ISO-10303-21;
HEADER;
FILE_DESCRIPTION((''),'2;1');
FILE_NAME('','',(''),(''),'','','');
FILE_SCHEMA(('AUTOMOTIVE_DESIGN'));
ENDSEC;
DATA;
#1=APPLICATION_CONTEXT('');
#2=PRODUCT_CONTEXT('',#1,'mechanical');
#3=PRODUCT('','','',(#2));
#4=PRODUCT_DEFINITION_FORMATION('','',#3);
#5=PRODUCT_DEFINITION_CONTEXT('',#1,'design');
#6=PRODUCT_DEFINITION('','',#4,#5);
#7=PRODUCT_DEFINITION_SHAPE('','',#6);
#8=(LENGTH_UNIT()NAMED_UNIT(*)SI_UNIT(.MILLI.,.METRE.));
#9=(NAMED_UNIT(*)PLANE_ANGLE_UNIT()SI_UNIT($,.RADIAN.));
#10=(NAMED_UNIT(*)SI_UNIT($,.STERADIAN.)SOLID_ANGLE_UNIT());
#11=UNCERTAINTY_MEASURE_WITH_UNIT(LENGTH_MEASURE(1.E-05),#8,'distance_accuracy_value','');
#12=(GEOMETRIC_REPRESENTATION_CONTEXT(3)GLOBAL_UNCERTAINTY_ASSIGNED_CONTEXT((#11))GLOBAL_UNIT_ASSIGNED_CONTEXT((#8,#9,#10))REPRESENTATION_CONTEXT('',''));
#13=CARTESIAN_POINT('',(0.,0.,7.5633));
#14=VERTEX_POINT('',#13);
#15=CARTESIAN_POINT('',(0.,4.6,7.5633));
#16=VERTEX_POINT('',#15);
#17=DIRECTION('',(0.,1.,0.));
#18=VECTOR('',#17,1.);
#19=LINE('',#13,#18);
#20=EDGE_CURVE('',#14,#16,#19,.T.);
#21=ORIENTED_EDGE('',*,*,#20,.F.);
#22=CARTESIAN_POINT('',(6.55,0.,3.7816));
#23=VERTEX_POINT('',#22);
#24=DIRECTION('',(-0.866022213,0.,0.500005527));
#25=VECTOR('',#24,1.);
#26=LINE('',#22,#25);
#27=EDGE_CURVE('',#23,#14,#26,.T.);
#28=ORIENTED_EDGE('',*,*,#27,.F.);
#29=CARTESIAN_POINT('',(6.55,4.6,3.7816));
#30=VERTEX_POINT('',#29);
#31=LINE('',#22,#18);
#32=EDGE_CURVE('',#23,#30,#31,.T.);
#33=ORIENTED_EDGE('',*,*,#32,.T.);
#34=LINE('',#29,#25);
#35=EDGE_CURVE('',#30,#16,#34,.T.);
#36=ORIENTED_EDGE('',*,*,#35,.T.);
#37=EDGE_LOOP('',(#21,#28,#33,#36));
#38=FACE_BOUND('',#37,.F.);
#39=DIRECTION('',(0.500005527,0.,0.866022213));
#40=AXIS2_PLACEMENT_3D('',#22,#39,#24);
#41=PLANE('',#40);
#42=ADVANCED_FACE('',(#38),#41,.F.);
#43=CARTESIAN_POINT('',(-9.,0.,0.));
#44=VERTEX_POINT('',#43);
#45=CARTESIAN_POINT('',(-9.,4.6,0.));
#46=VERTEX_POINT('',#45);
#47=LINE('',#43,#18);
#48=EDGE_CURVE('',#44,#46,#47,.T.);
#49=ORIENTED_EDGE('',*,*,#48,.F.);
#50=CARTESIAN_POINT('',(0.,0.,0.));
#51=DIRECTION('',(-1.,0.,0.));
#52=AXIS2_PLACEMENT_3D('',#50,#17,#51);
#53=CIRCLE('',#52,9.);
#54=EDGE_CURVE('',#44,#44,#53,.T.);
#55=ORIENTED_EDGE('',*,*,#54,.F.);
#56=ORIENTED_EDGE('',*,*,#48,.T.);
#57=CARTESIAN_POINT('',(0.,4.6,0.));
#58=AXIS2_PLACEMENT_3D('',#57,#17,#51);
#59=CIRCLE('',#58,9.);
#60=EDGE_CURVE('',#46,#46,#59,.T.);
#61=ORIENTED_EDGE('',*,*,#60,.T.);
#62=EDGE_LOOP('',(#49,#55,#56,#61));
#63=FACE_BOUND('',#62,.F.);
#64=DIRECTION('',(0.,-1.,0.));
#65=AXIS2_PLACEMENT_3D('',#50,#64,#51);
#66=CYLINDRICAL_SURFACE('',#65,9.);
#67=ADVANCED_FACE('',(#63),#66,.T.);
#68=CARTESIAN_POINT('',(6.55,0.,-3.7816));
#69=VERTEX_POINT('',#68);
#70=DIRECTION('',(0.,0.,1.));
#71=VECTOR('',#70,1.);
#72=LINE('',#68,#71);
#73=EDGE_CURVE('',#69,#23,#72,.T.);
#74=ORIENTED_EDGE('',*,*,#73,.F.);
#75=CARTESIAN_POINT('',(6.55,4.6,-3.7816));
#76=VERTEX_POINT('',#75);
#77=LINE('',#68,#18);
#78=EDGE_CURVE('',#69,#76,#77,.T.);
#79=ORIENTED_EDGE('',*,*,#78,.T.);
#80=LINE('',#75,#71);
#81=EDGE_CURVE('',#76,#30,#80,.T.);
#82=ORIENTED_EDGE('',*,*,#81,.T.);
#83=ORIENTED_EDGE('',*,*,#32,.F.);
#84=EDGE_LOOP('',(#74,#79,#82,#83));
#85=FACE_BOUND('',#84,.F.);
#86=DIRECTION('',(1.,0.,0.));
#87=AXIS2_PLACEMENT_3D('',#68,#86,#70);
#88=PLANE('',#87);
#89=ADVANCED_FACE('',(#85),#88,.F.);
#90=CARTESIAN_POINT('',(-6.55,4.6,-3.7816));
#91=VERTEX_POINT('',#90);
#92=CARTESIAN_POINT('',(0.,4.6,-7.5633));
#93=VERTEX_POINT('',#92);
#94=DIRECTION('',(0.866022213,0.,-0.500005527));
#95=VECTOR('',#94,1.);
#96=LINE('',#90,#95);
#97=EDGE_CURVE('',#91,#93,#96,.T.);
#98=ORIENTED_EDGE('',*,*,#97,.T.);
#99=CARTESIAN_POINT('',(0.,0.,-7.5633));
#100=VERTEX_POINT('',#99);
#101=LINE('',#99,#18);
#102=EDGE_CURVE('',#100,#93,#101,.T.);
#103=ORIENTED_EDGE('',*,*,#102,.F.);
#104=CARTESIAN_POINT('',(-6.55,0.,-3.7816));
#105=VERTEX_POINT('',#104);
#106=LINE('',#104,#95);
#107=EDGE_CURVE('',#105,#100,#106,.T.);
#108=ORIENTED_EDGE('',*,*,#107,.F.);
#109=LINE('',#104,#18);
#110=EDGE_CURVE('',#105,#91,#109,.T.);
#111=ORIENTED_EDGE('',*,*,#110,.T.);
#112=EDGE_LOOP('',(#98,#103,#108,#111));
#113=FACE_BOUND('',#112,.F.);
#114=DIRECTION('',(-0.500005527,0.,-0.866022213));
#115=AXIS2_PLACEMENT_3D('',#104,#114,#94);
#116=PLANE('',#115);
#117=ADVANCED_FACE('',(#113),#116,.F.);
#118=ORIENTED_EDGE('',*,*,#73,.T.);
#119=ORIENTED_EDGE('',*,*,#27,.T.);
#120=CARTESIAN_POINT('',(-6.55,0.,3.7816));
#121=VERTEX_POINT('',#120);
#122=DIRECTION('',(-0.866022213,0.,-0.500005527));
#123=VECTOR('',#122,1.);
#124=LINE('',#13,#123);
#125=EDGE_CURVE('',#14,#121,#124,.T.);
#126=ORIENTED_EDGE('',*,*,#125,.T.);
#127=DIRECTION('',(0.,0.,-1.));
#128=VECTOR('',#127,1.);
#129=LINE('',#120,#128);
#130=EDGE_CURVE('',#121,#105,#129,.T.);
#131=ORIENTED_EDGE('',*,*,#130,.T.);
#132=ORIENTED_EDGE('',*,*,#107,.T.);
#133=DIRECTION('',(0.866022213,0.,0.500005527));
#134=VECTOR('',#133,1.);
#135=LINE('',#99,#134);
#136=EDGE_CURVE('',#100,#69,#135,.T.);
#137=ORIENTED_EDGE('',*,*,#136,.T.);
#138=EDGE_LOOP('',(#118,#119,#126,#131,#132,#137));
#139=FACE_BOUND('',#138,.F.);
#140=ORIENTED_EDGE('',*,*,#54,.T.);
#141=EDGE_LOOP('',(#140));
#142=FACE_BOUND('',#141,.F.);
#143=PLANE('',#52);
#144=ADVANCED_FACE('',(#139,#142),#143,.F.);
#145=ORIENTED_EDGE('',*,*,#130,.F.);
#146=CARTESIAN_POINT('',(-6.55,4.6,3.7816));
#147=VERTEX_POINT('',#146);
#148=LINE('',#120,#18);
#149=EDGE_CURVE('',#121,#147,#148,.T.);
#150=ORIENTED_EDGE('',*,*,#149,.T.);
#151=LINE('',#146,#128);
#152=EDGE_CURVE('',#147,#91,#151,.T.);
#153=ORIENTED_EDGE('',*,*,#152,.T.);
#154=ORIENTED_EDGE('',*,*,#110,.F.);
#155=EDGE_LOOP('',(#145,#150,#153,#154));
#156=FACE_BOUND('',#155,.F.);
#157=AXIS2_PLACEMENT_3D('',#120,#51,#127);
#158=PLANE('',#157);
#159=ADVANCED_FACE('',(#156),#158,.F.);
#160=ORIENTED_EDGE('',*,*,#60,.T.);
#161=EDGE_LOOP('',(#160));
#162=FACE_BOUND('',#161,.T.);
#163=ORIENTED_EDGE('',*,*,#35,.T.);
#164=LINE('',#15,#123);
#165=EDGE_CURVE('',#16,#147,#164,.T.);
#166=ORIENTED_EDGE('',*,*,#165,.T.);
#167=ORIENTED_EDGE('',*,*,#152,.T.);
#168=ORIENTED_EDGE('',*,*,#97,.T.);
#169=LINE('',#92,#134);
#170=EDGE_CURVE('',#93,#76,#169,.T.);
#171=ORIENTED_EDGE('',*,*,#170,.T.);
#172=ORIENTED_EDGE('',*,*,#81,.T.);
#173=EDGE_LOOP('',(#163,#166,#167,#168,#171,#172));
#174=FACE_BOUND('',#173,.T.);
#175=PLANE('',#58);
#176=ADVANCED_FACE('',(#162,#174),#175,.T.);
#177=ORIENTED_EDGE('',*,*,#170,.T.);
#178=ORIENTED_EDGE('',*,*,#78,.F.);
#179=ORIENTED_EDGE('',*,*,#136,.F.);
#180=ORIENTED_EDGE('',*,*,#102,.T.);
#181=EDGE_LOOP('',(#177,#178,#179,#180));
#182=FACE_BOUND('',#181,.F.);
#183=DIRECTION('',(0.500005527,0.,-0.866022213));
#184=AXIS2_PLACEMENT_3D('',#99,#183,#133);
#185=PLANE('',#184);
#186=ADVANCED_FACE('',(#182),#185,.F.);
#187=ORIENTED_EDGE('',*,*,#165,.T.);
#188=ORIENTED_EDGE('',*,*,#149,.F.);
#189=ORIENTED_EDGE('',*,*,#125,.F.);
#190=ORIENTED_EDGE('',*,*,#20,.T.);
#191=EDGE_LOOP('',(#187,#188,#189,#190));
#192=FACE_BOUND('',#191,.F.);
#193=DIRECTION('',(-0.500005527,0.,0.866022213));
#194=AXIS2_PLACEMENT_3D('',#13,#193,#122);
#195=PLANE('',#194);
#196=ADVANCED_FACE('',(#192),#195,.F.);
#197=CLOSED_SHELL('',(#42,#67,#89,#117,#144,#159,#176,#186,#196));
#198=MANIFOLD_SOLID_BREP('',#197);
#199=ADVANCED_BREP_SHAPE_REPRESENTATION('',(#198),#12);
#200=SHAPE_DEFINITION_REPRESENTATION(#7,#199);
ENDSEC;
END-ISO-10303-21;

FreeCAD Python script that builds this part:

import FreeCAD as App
import Part
import Sketcher
from FreeCAD import Vector
Q = App.Units.Quantity

doc = App.newDocument("Part")
body = doc.addObject("PartDesign::Body", "Body")

sketch1 = doc.addObject("Sketcher::SketchObject", "Sketch")
body.addObject(sketch1)
sketch1.AttachmentSupport = (doc.XZ_Plane, [""])
sketch1.MapMode = "FlatFace"
sketch1.addGeometry([
    Part.Circle(Vector(0, 0, 0), Vector(0, 0, 1), 9),
    Part.LineSegment(Vector(7, 4, 0), Vector(0, 8, 0)),
    Part.LineSegment(Vector(0, 8, 0), Vector(-7, 4, 0)),
    Part.LineSegment(Vector(-7, 4, 0), Vector(-7, -4, 0)),
    Part.LineSegment(Vector(-7, -4, 0), Vector(0, -8, 0)),
    Part.LineSegment(Vector(0, -8, 0), Vector(7, -4, 0)),
    Part.LineSegment(Vector(7, -4, 0), Vector(7, 4, 0)),
], False)
sketch1.addConstraint([
    Sketcher.Constraint("Coincident", 1, 2, 2, 1),
    Sketcher.Constraint("Coincident", 2, 2, 3, 1),
    Sketcher.Constraint("Coincident", 3, 2, 4, 1),
    Sketcher.Constraint("Coincident", 4, 2, 5, 1),
    Sketcher.Constraint("Coincident", 5, 2, 6, 1),
    Sketcher.Constraint("Coincident", 6, 2, 1, 1),
    Sketcher.Constraint("Vertical", 3),
    Sketcher.Constraint("Vertical", 6),
    Sketcher.Constraint("Coincident", 0, 3, -1, 1),
    Sketcher.Constraint("Symmetric", 1, 2, 4, 2, -1, 1),
    Sketcher.Constraint("Symmetric", 2, 2, 5, 2, -1, 1),
    Sketcher.Constraint("PointOnObject", 1, 2, -2),
    Sketcher.Constraint("Parallel", 1, 4),
    Sketcher.Constraint("Horizontal", 3, 2, 5, 2),
    Sketcher.Constraint("Diameter", 0, Q("18 mm")),
    Sketcher.Constraint("DistanceX", 3, 2, 5, 2, Q("13.1 mm")),
    Sketcher.Constraint("Angle", 1, Q("149.9996 deg")),
    Sketcher.Constraint("DistanceY", 3, 2, 3, 1, Q("7.5632 mm")),
])
pad1 = doc.addObject("PartDesign::Pad", "Pad")
body.addObject(pad1)
pad1.Profile = sketch1
pad1.Length = 4.6
pad1.Reversed = True

doc.recompute()
